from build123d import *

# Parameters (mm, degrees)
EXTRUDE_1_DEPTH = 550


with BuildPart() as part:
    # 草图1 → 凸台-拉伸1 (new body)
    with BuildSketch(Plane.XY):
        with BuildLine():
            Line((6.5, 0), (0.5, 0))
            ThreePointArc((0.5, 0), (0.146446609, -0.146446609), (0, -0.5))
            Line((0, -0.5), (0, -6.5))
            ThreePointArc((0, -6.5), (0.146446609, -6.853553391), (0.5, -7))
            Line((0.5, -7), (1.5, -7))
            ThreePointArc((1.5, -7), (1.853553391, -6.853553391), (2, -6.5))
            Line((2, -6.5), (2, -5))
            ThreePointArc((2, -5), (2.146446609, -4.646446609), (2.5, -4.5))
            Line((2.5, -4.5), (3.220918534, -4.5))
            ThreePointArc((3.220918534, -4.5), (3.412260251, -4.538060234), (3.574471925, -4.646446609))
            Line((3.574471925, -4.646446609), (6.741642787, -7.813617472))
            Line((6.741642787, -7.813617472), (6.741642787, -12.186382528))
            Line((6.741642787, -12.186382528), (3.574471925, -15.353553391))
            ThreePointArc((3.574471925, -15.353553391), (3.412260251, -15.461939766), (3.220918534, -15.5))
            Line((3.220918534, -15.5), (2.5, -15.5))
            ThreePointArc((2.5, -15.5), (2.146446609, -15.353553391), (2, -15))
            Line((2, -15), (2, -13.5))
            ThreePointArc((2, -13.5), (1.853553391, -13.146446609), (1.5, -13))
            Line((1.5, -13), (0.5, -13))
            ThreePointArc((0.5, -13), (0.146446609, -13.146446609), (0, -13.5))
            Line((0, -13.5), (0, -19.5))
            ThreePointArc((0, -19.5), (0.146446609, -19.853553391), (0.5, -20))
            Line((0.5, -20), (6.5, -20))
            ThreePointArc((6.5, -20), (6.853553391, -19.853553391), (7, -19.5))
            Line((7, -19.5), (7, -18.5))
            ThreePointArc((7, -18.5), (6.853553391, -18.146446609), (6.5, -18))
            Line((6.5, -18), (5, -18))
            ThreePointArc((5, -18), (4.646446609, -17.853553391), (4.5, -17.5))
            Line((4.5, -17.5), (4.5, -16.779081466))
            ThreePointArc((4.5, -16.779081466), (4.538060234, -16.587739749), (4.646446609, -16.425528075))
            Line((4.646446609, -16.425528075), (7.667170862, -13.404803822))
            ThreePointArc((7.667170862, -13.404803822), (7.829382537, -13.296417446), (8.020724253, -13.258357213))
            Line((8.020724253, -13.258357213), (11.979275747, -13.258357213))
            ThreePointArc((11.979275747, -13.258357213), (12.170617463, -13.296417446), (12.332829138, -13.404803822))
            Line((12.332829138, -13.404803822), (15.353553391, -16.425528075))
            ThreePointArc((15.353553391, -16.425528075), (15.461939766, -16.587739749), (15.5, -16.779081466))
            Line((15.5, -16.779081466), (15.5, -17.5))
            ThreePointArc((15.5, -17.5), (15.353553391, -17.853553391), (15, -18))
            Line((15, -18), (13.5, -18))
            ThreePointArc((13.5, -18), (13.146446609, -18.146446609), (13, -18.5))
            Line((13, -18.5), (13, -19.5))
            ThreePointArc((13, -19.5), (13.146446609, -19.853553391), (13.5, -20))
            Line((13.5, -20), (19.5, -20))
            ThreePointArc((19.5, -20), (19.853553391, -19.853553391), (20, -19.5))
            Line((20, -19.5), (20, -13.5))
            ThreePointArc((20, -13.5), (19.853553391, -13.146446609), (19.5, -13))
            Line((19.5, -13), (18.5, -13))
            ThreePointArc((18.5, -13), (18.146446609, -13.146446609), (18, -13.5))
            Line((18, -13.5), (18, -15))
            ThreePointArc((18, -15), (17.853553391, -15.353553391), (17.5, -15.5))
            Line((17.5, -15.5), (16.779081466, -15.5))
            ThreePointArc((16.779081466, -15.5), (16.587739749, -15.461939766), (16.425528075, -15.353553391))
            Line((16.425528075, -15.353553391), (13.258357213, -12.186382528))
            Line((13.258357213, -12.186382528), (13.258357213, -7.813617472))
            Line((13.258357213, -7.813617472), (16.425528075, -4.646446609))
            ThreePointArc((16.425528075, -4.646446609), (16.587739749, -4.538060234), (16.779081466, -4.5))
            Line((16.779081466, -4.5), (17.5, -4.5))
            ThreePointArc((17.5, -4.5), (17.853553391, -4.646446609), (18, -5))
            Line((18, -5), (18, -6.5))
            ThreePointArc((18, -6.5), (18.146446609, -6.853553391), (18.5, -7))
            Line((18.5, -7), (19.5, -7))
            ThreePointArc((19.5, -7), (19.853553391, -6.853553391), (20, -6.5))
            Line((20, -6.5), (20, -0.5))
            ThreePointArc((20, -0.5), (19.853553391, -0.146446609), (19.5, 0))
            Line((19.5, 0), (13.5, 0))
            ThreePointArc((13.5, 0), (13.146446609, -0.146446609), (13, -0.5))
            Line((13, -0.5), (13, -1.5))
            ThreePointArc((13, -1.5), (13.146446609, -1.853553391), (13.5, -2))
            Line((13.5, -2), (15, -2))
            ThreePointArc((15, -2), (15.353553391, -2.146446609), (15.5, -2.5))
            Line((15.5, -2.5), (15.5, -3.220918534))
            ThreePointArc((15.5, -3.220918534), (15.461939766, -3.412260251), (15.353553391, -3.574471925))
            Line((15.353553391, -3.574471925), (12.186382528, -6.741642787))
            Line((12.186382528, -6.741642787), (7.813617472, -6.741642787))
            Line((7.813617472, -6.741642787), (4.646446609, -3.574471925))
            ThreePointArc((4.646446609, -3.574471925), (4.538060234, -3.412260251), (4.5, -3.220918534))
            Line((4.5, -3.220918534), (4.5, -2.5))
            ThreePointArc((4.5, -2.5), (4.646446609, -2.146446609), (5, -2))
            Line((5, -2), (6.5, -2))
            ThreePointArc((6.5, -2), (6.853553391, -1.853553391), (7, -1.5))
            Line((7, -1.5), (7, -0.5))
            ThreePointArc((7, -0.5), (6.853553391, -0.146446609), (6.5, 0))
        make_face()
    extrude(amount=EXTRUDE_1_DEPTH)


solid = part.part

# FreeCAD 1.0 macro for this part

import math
import FreeCAD as App
import Part
import Sketcher
from FreeCAD import Vector
Q = App.Units.Quantity

doc = App.newDocument("Part")
body = doc.addObject("PartDesign::Body", "Body")

sketch1 = body.newObject("Sketcher::SketchObject", "Sketch")
sketch1.AttachmentSupport = (doc.getObject("XY_Plane"), [""])
sketch1.MapMode = "FlatFace"
sketch1.addGeometry([
    Part.LineSegment(Vector(6.5, 0, 0), Vector(0.5, 0, 0)),
    Part.ArcOfCircle(Part.Circle(Vector(0.5, -0.5, 0), Vector(0, 0, 1), 0.5), math.radians(90), math.radians(180)),
    Part.LineSegment(Vector(0, -0.5, 0), Vector(0, -6.5, 0)),
    Part.ArcOfCircle(Part.Circle(Vector(0.5, -6.5, 0), Vector(0, 0, 1), 0.5), math.radians(180), math.radians(270)),
    Part.LineSegment(Vector(0.5, -7, 0), Vector(1.5, -7, 0)),
    Part.ArcOfCircle(Part.Circle(Vector(1.5, -6.5, 0), Vector(0, 0, 1), 0.5), math.radians(-90), math.radians(0)),
    Part.LineSegment(Vector(2, -6.5, 0), Vector(2, -5, 0)),
    Part.ArcOfCircle(Part.Circle(Vector(2.5, -5, 0), Vector(0, 0, 1), 0.5), math.radians(90), math.radians(180)),
    Part.LineSegment(Vector(2.5, -4.5, 0), Vector(3.22, -4.5, 0)),
    Part.ArcOfCircle(Part.Circle(Vector(3.22, -5, 0), Vector(0, 0, 1), 0.5), math.radians(45), math.radians(90)),
    Part.LineSegment(Vector(3.57, -4.65, 0), Vector(6.74, -7.81, 0)),
    Part.LineSegment(Vector(6.74, -7.81, 0), Vector(6.74, -12.19, 0)),
    Part.LineSegment(Vector(6.74, -12.19, 0), Vector(3.57, -15.35, 0)),
    Part.ArcOfCircle(Part.Circle(Vector(3.22, -15, 0), Vector(0, 0, 1), 0.5), math.radians(-90), math.radians(-45)),
    Part.LineSegment(Vector(3.22, -15.5, 0), Vector(2.5, -15.5, 0)),
    Part.ArcOfCircle(Part.Circle(Vector(2.5, -15, 0), Vector(0, 0, 1), 0.5), math.radians(180), math.radians(270)),
    Part.LineSegment(Vector(2, -15, 0), Vector(2, -13.5, 0)),
    Part.ArcOfCircle(Part.Circle(Vector(1.5, -13.5, 0), Vector(0, 0, 1), 0.5), math.radians(0), math.radians(90)),
    Part.LineSegment(Vector(1.5, -13, 0), Vector(0.5, -13, 0)),
    Part.ArcOfCircle(Part.Circle(Vector(0.5, -13.5, 0), Vector(0, 0, 1), 0.5), math.radians(90), math.radians(180)),
    Part.LineSegment(Vector(0, -13.5, 0), Vector(0, -19.5, 0)),
    Part.ArcOfCircle(Part.Circle(Vector(0.5, -19.5, 0), Vector(0, 0, 1), 0.5), math.radians(180), math.radians(270)),
    Part.LineSegment(Vector(0.5, -20, 0), Vector(6.5, -20, 0)),
    Part.ArcOfCircle(Part.Circle(Vector(6.5, -19.5, 0), Vector(0, 0, 1), 0.5), math.radians(-90), math.radians(0)),
    Part.LineSegment(Vector(7, -19.5, 0), Vector(7, -18.5, 0)),
    Part.ArcOfCircle(Part.Circle(Vector(6.5, -18.5, 0), Vector(0, 0, 1), 0.5), math.radians(0), math.radians(90)),
    Part.LineSegment(Vector(6.5, -18, 0), Vector(5, -18, 0)),
    Part.ArcOfCircle(Part.Circle(Vector(5, -17.5, 0), Vector(0, 0, 1), 0.5), math.radians(180), math.radians(270)),
    Part.LineSegment(Vector(4.5, -17.5, 0), Vector(4.5, -16.78, 0)),
    Part.ArcOfCircle(Part.Circle(Vector(5, -16.78, 0), Vector(0, 0, 1), 0.5), math.radians(135), math.radians(180)),
    Part.LineSegment(Vector(4.65, -16.43, 0), Vector(7.67, -13.4, 0)),
    Part.ArcOfCircle(Part.Circle(Vector(8.02, -13.76, 0), Vector(0, 0, 1), 0.5), math.radians(90), math.radians(135)),
    Part.LineSegment(Vector(8.02, -13.26, 0), Vector(11.98, -13.26, 0)),
    Part.ArcOfCircle(Part.Circle(Vector(11.98, -13.76, 0), Vector(0, 0, 1), 0.5), math.radians(45), math.radians(90)),
    Part.LineSegment(Vector(12.33, -13.4, 0), Vector(15.35, -16.43, 0)),
    Part.ArcOfCircle(Part.Circle(Vector(15, -16.78, 0), Vector(0, 0, 1), 0.5), math.radians(0), math.radians(45)),
    Part.LineSegment(Vector(15.5, -16.78, 0), Vector(15.5, -17.5, 0)),
    Part.ArcOfCircle(Part.Circle(Vector(15, -17.5, 0), Vector(0, 0, 1), 0.5), math.radians(-90), math.radians(0)),
    Part.LineSegment(Vector(15, -18, 0), Vector(13.5, -18, 0)),
    Part.ArcOfCircle(Part.Circle(Vector(13.5, -18.5, 0), Vector(0, 0, 1), 0.5), math.radians(90), math.radians(180)),
    Part.LineSegment(Vector(13, -18.5, 0), Vector(13, -19.5, 0)),
    Part.ArcOfCircle(Part.Circle(Vector(13.5, -19.5, 0), Vector(0, 0, 1), 0.5), math.radians(180), math.radians(270)),
    Part.LineSegment(Vector(13.5, -20, 0), Vector(19.5, -20, 0)),
    Part.ArcOfCircle(Part.Circle(Vector(19.5, -19.5, 0), Vector(0, 0, 1), 0.5), math.radians(-90), math.radians(0)),
    Part.LineSegment(Vector(20, -19.5, 0), Vector(20, -13.5, 0)),
    Part.ArcOfCircle(Part.Circle(Vector(19.5, -13.5, 0), Vector(0, 0, 1), 0.5), math.radians(0), math.radians(90)),
    Part.LineSegment(Vector(19.5, -13, 0), Vector(18.5, -13, 0)),
    Part.ArcOfCircle(Part.Circle(Vector(18.5, -13.5, 0), Vector(0, 0, 1), 0.5), math.radians(90), math.radians(180)),
    Part.LineSegment(Vector(18, -13.5, 0), Vector(18, -15, 0)),
    Part.ArcOfCircle(Part.Circle(Vector(17.5, -15, 0), Vector(0, 0, 1), 0.5), math.radians(-90), math.radians(0)),
    Part.LineSegment(Vector(17.5, -15.5, 0), Vector(16.78, -15.5, 0)),
    Part.ArcOfCircle(Part.Circle(Vector(16.78, -15, 0), Vector(0, 0, 1), 0.5), math.radians(-135), math.radians(-90)),
    Part.LineSegment(Vector(16.43, -15.35, 0), Vector(13.26, -12.19, 0)),
    Part.LineSegment(Vector(13.26, -12.19, 0), Vector(13.26, -7.81, 0)),
    Part.LineSegment(Vector(13.26, -7.81, 0), Vector(16.43, -4.65, 0)),
    Part.ArcOfCircle(Part.Circle(Vector(16.78, -5, 0), Vector(0, 0, 1), 0.5), math.radians(90), math.radians(135)),
    Part.LineSegment(Vector(16.78, -4.5, 0), Vector(17.5, -4.5, 0)),
    Part.ArcOfCircle(Part.Circle(Vector(17.5, -5, 0), Vector(0, 0, 1), 0.5), math.radians(0), math.radians(90)),
    Part.LineSegment(Vector(18, -5, 0), Vector(18, -6.5, 0)),
    Part.ArcOfCircle(Part.Circle(Vector(18.5, -6.5, 0), Vector(0, 0, 1), 0.5), math.radians(180), math.radians(270)),
    Part.LineSegment(Vector(18.5, -7, 0), Vector(19.5, -7, 0)),
    Part.ArcOfCircle(Part.Circle(Vector(19.5, -6.5, 0), Vector(0, 0, 1), 0.5), math.radians(-90), math.radians(0)),
    Part.LineSegment(Vector(20, -6.5, 0), Vector(20, -0.5, 0)),
    Part.ArcOfCircle(Part.Circle(Vector(19.5, -0.5, 0), Vector(0, 0, 1), 0.5), math.radians(0), math.radians(90)),
    Part.LineSegment(Vector(19.5, 0, 0), Vector(13.5, 0, 0)),
    Part.ArcOfCircle(Part.Circle(Vector(13.5, -0.5, 0), Vector(0, 0, 1), 0.5), math.radians(90), math.radians(180)),
    Part.LineSegment(Vector(13, -0.5, 0), Vector(13, -1.5, 0)),
    Part.ArcOfCircle(Part.Circle(Vector(13.5, -1.5, 0), Vector(0, 0, 1), 0.5), math.radians(180), math.radians(270)),
    Part.LineSegment(Vector(13.5, -2, 0), Vector(15, -2, 0)),
    Part.ArcOfCircle(Part.Circle(Vector(15, -2.5, 0), Vector(0, 0, 1), 0.5), math.radians(0), math.radians(90)),
    Part.LineSegment(Vector(15.5, -2.5, 0), Vector(15.5, -3.22, 0)),
    Part.ArcOfCircle(Part.Circle(Vector(15, -3.22, 0), Vector(0, 0, 1), 0.5), math.radians(-45), math.radians(0)),
    Part.LineSegment(Vector(15.35, -3.57, 0), Vector(12.19, -6.74, 0)),
    Part.LineSegment(Vector(12.19, -6.74, 0), Vector(7.81, -6.74, 0)),
    Part.LineSegment(Vector(7.81, -6.74, 0), Vector(4.65, -3.57, 0)),
    Part.ArcOfCircle(Part.Circle(Vector(5, -3.22, 0), Vector(0, 0, 1), 0.5), math.radians(180), math.radians(225)),
    Part.LineSegment(Vector(4.5, -3.22, 0), Vector(4.5, -2.5, 0)),
    Part.ArcOfCircle(Part.Circle(Vector(5, -2.5, 0), Vector(0, 0, 1), 0.5), math.radians(90), math.radians(180)),
    Part.LineSegment(Vector(5, -2, 0), Vector(6.5, -2, 0)),
    Part.ArcOfCircle(Part.Circle(Vector(6.5, -1.5, 0), Vector(0, 0, 1), 0.5), math.radians(-90), math.radians(0)),
    Part.LineSegment(Vector(7, -1.5, 0), Vector(7, -0.5, 0)),
    Part.ArcOfCircle(Part.Circle(Vector(6.5, -0.5, 0), Vector(0, 0, 1), 0.5), math.radians(0), math.radians(90)),
], False)
sketch1.addConstraint([
    Sketcher.Constraint("Tangent", 0, 2, 1, 1),
    Sketcher.Constraint("Tangent", 1, 2, 2, 1),
    Sketcher.Constraint("Tangent", 2, 2, 3, 1),
    Sketcher.Constraint("Tangent", 3, 2, 4, 1),
    Sketcher.Constraint("Tangent", 4, 2, 5, 1),
    Sketcher.Constraint("Tangent", 5, 2, 6, 1),
    Sketcher.Constraint("Tangent", 6, 2, 7, 2),
    Sketcher.Constraint("Tangent", 7, 1, 8, 1),
    Sketcher.Constraint("Tangent", 8, 2, 9, 2),
    Sketcher.Constraint("Tangent", 9, 1, 10, 1),
    Sketcher.Constraint("Coincident", 10, 2, 11, 1),
    Sketcher.Constraint("Coincident", 11, 2, 12, 1),
    Sketcher.Constraint("Tangent", 12, 2, 13, 2),
    Sketcher.Constraint("Tangent", 13, 1, 14, 1),
    Sketcher.Constraint("Tangent", 14, 2, 15, 2),
    Sketcher.Constraint("Tangent", 15, 1, 16, 1),
    Sketcher.Constraint("Tangent", 16, 2, 17, 1),
    Sketcher.Constraint("Tangent", 17, 2, 18, 1),
    Sketcher.Constraint("Tangent", 18, 2, 19, 1),
    Sketcher.Constraint("Tangent", 19, 2, 20, 1),
    Sketcher.Constraint("Tangent", 20, 2, 21, 1),
    Sketcher.Constraint("Tangent", 21, 2, 22, 1),
    Sketcher.Constraint("Tangent", 22, 2, 23, 1),
    Sketcher.Constraint("Tangent", 23, 2, 24, 1),
    Sketcher.Constraint("Tangent", 24, 2, 25, 1),
    Sketcher.Constraint("Tangent", 25, 2, 26, 1),
    Sketcher.Constraint("Tangent", 26, 2, 27, 2),
    Sketcher.Constraint("Tangent", 27, 1, 28, 1),
    Sketcher.Constraint("Tangent", 28, 2, 29, 2),
    Sketcher.Constraint("Tangent", 29, 1, 30, 1),
    Sketcher.Constraint("Tangent", 30, 2, 31, 2),
    Sketcher.Constraint("Tangent", 31, 1, 32, 1),
    Sketcher.Constraint("Tangent", 32, 2, 33, 2),
    Sketcher.Constraint("Tangent", 33, 1, 34, 1),
    Sketcher.Constraint("Tangent", 34, 2, 35, 2),
    Sketcher.Constraint("Tangent", 35, 1, 36, 1),
    Sketcher.Constraint("Tangent", 36, 2, 37, 2),
    Sketcher.Constraint("Tangent", 37, 1, 38, 1),
    Sketcher.Constraint("Tangent", 38, 2, 39, 1),
    Sketcher.Constraint("Tangent", 39, 2, 40, 1),
    Sketcher.Constraint("Tangent", 40, 2, 41, 1),
    Sketcher.Constraint("Tangent", 41, 2, 42, 1),
    Sketcher.Constraint("Tangent", 42, 2, 43, 1),
    Sketcher.Constraint("Tangent", 43, 2, 44, 1),
    Sketcher.Constraint("Tangent", 44, 2, 45, 1),
    Sketcher.Constraint("Tangent", 45, 2, 46, 1),
    Sketcher.Constraint("Tangent", 46, 2, 47, 1),
    Sketcher.Constraint("Tangent", 47, 2, 48, 1),
    Sketcher.Constraint("Tangent", 48, 2, 49, 2),
    Sketcher.Constraint("Tangent", 49, 1, 50, 1),
    Sketcher.Constraint("Tangent", 50, 2, 51, 2),
    Sketcher.Constraint("Tangent", 51, 1, 52, 1),
    Sketcher.Constraint("Coincident", 52, 2, 53, 1),
    Sketcher.Constraint("Coincident", 53, 2, 54, 1),
    Sketcher.Constraint("Tangent", 54, 2, 55, 2),
    Sketcher.Constraint("Tangent", 55, 1, 56, 1),
    Sketcher.Constraint("Tangent", 56, 2, 57, 2),
    Sketcher.Constraint("Tangent", 57, 1, 58, 1),
    Sketcher.Constraint("Tangent", 58, 2, 59, 1),
    Sketcher.Constraint("Tangent", 59, 2, 60, 1),
    Sketcher.Constraint("Tangent", 60, 2, 61, 1),
    Sketcher.Constraint("Tangent", 61, 2, 62, 1),
    Sketcher.Constraint("Tangent", 62, 2, 63, 1),
    Sketcher.Constraint("Tangent", 63, 2, 64, 1),
    Sketcher.Constraint("Tangent", 64, 2, 65, 1),
    Sketcher.Constraint("Tangent", 65, 2, 66, 1),
    Sketcher.Constraint("Tangent", 66, 2, 67, 1),
    Sketcher.Constraint("Tangent", 67, 2, 68, 1),
    Sketcher.Constraint("Tangent", 68, 2, 69, 2),
    Sketcher.Constraint("Tangent", 69, 1, 70, 1),
    Sketcher.Constraint("Tangent", 70, 2, 71, 2),
    Sketcher.Constraint("Tangent", 71, 1, 72, 1),
    Sketcher.Constraint("Coincident", 72, 2, 73, 1),
    Sketcher.Constraint("Coincident", 73, 2, 74, 1),
    Sketcher.Constraint("Tangent", 74, 2, 75, 2),
    Sketcher.Constraint("Tangent", 75, 1, 76, 1),
    Sketcher.Constraint("Tangent", 76, 2, 77, 2),
    Sketcher.Constraint("Tangent", 77, 1, 78, 1),
    Sketcher.Constraint("Tangent", 78, 2, 79, 1),
    Sketcher.Constraint("Tangent", 79, 2, 80, 1),
    Sketcher.Constraint("Tangent", 80, 2, 81, 1),
    Sketcher.Constraint("Tangent", 81, 2, 0, 1),
    Sketcher.Constraint("Horizontal", 0),
    Sketcher.Constraint("Vertical", 2),
    Sketcher.Constraint("Horizontal", 4),
    Sketcher.Constraint("Vertical", 6),
    Sketcher.Constraint("Horizontal", 8),
    Sketcher.Constraint("Vertical", 11),
    Sketcher.Constraint("Horizontal", 14),
    Sketcher.Constraint("Vertical", 16),
    Sketcher.Constraint("Horizontal", 18),
    Sketcher.Constraint("Vertical", 20),
    Sketcher.Constraint("Horizontal", 22),
    Sketcher.Constraint("Vertical", 24),
    Sketcher.Constraint("Horizontal", 26),
    Sketcher.Constraint("Vertical", 28),
    Sketcher.Constraint("Horizontal", 32),
    Sketcher.Constraint("Vertical", 36),
    Sketcher.Constraint("Horizontal", 38),
    Sketcher.Constraint("Vertical", 40),
    Sketcher.Constraint("Horizontal", 42),
    Sketcher.Constraint("Vertical", 44),
    Sketcher.Constraint("Horizontal", 46),
    Sketcher.Constraint("Vertical", 48),
    Sketcher.Constraint("Horizontal", 50),
    Sketcher.Constraint("Vertical", 53),
    Sketcher.Constraint("Horizontal", 56),
    Sketcher.Constraint("Vertical", 58),
    Sketcher.Constraint("Horizontal", 60),
    Sketcher.Constraint("Vertical", 62),
    Sketcher.Constraint("Horizontal", 64),
    Sketcher.Constraint("Vertical", 66),
    Sketcher.Constraint("Horizontal", 68),
    Sketcher.Constraint("Vertical", 70),
    Sketcher.Constraint("Horizontal", 73),
    Sketcher.Constraint("Vertical", 76),
    Sketcher.Constraint("Horizontal", 78),
    Sketcher.Constraint("Vertical", 80),
    Sketcher.Constraint("Equal", 1, 3),
    Sketcher.Constraint("Equal", 3, 5),
    Sketcher.Constraint("Equal", 5, 7),
    Sketcher.Constraint("Equal", 7, 9),
    Sketcher.Constraint("Equal", 9, 13),
    Sketcher.Constraint("Equal", 13, 15),
    Sketcher.Constraint("Equal", 15, 17),
    Sketcher.Constraint("Equal", 17, 19),
    Sketcher.Constraint("Equal", 19, 21),
    Sketcher.Constraint("Equal", 21, 23),
    Sketcher.Constraint("Equal", 23, 25),
    Sketcher.Constraint("Equal", 25, 27),
    Sketcher.Constraint("Equal", 27, 29),
    Sketcher.Constraint("Equal", 29, 31),
    Sketcher.Constraint("Equal", 31, 33),
    Sketcher.Constraint("Equal", 33, 35),
    Sketcher.Constraint("Equal", 35, 37),
    Sketcher.Constraint("Equal", 37, 39),
    Sketcher.Constraint("Equal", 39, 41),
    Sketcher.Constraint("Equal", 41, 43),
    Sketcher.Constraint("Equal", 43, 45),
    Sketcher.Constraint("Equal", 45, 47),
    Sketcher.Constraint("Equal", 47, 49),
    Sketcher.Constraint("Equal", 49, 51),
    Sketcher.Constraint("Equal", 51, 55),
    Sketcher.Constraint("Equal", 55, 57),
    Sketcher.Constraint("Equal", 57, 59),
    Sketcher.Constraint("Equal", 59, 61),
    Sketcher.Constraint("Equal", 61, 63),
    Sketcher.Constraint("Equal", 63, 65),
    Sketcher.Constraint("Equal", 65, 67),
    Sketcher.Constraint("Equal", 67, 69),
    Sketcher.Constraint("Equal", 69, 71),
    Sketcher.Constraint("Equal", 71, 75),
    Sketcher.Constraint("Equal", 75, 77),
    Sketcher.Constraint("Equal", 77, 79),
    Sketcher.Constraint("Equal", 79, 81),
    Sketcher.Constraint("PointOnObject", 0, 2, -1),
    Sketcher.Constraint("PointOnObject", 1, 2, -2),
    Sketcher.Constraint("PointOnObject", 19, 2, -2),
    Sketcher.Constraint("PointOnObject", 63, 2, -1),
    Sketcher.Constraint("Perpendicular", 10, 12),
    Sketcher.Constraint("Parallel", 12, 30),
    Sketcher.Constraint("Perpendicular", 30, 34),
    Sketcher.Constraint("Parallel", 34, 52),
    Sketcher.Constraint("Perpendicular", 52, 54),
    Sketcher.Constraint("Parallel", 54, 72),
    Sketcher.Constraint("Perpendicular", 72, 74),
    Sketcher.Constraint("Horizontal", 29, 3, 35, 3),
    Sketcher.Constraint("Horizontal", 27, 3, 37, 3),
    Sketcher.Constraint("Horizontal", 23, 3, 41, 3),
    Sketcher.Constraint("Horizontal", 19, 3, 45, 3),
    Sketcher.Constraint("Horizontal", 15, 3, 49, 3),
    Sketcher.Constraint("Horizontal", 9, 3, 55, 3),
    Sketcher.Constraint("Horizontal", 5, 3, 59, 3),
    Sketcher.Constraint("Horizontal", 71, 3, 75, 3),
    Sketcher.Constraint("Horizontal", 69, 3, 77, 3),
    Sketcher.Constraint("Horizontal", 30, 2, 33, 1),
    Sketcher.Constraint("Horizontal", 11, 2, 52, 2),
    Sketcher.Constraint("Horizontal", 10, 2, 53, 2),
    Sketcher.Constraint("Vertical", 9, 3, 13, 3),
    Sketcher.Constraint("Vertical", 7, 3, 15, 3),
    Sketcher.Constraint("Vertical", 49, 3, 57, 3),
    Sketcher.Constraint("Vertical", 45, 3, 61, 3),
    Sketcher.Constraint("Vertical", 41, 3, 65, 3),
    Sketcher.Constraint("Vertical", 37, 3, 69, 3),
    Sketcher.Constraint("Vertical", 29, 3, 75, 3),
    Sketcher.Constraint("Vertical", 25, 3, 79, 3),
    Sketcher.Constraint("Equal", 26, 38),
    Sketcher.Constraint("Equal", 22, 42),
    Sketcher.Constraint("Equal", 18, 46),
    Sketcher.Constraint("Equal", 14, 50),
    Sketcher.Constraint("Equal", 64, 2),
    Sketcher.Constraint("Equal", 78, 6),
    Sketcher.Constraint("Equal", 73, 11),
    Sketcher.Constraint("Equal", 6, 16),
    Sketcher.Constraint("Equal", 2, 20),
    Sketcher.Constraint("Equal", 60, 24),
    Sketcher.Constraint("Equal", 56, 28),
    Sketcher.Constraint("Equal", 40, 66),
    Sketcher.Constraint("Equal", 36, 70),
    Sketcher.Constraint("Equal", 54, 72),
    Sketcher.Constraint("Radius", 1, Q("0.5 mm")),
    Sketcher.Constraint("DistanceX", 0, 2, 0, 1, Q("6 mm")),
    Sketcher.Constraint("DistanceX", 4, 1, 4, 2, Q("1 mm")),
    Sketcher.Constraint("DistanceX", 26, 2, 26, 1, Q("1.5 mm")),
    Sketcher.Constraint("DistanceY", 13, 3, -1, 1, Q("15 mm")),
    Sketcher.Constraint("DistanceX", 8, 1, 8, 2, Q("0.720919 mm")),
    Sketcher.Constraint("DistanceX", 32, 1, 32, 2, Q("3.958551 mm")),
    Sketcher.Constraint("DistanceX", 73, 2, 73, 1, Q("4.372765 mm")),
])
pad1 = body.newObject("PartDesign::Pad", "Pad")
pad1.Profile = sketch1
pad1.Length = 550

doc.recompute()
